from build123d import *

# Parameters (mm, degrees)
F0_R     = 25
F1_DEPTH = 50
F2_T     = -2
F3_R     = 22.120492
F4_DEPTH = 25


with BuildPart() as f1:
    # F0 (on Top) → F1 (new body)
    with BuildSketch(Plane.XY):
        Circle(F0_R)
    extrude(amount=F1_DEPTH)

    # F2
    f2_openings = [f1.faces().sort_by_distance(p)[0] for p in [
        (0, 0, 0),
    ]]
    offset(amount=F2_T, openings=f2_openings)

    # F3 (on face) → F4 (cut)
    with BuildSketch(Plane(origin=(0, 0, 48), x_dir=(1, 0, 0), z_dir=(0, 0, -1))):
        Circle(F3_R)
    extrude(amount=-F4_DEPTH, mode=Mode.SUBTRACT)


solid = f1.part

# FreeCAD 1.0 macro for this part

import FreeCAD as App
import Part
import Sketcher
Q = App.Units.Quantity


def faces_at(feature, points):
    """Names of the faces that lie closest to the given points."""
    faces = feature.Shape.Faces
    near = lambda p: min(range(len(faces)), key=lambda i: faces[i].distToShape(Part.Vertex(*p))[0])
    return sorted({f"Face{near(p) + 1}" for p in points})

doc = App.newDocument("Part")
body = doc.addObject("PartDesign::Body", "Body")

# Sketch on XY plane
sketch1 = body.newObject("Sketcher::SketchObject", "Sketch")
sketch1.AttachmentSupport = (doc.getObject("XY_Plane"), [""])
sketch1.MapMode = "FlatFace"
sketch1.addGeometry(Part.Circle(App.Vector(0, 0, 0), App.Vector(0, 0, 1), 25), False)
sketch1.addConstraint([
    Sketcher.Constraint("Coincident", 0, 3, -1, 1),
    Sketcher.Constraint("Diameter", 0, Q("50 mm")),
])
pad1 = body.newObject("PartDesign::Pad", "Pad")
pad1.Profile = sketch1
pad1.Length = 50
doc.recompute()

thickness = body.newObject("PartDesign::Thickness", "Thickness")
thickness.Base = (pad1, faces_at(pad1, [(0, 0, 0)]))
thickness.Value = 2
thickness.Reversed = True
thickness.Join = "Arc"

# Sketch on XY plane
sketch2 = body.newObject("Sketcher::SketchObject", "Sketch001")
sketch2.AttachmentSupport = (doc.getObject("XY_Plane"), [""])
sketch2.MapMode = "FlatFace"
sketch2.AttachmentOffset = App.Placement(App.Vector(0, 0, 48), App.Rotation())
sketch2.addGeometry(Part.Circle(App.Vector(0, 0, 0), App.Vector(0, 0, 1), 22), False)
sketch2.addConstraint([
    Sketcher.Constraint("Coincident", 0, 3, -1, 1),
    Sketcher.Constraint("Diameter", 0, Q("44.240984 mm")),
])
pocket1 = body.newObject("PartDesign::Pocket", "Pocket")
pocket1.Profile = sketch2
pocket1.Length = 25
pocket1.Reversed = True

doc.recompute()
